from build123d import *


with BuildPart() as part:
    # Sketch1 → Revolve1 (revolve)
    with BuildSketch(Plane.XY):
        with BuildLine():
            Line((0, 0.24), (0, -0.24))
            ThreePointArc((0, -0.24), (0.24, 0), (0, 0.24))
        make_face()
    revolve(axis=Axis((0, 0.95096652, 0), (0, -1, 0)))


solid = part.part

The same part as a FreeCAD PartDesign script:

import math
import FreeCAD as App
import Part
import Sketcher
from FreeCAD import Vector

doc = App.newDocument("Part")
body = doc.addObject("PartDesign::Body", "Body")

sketch1 = body.newObject("Sketcher::SketchObject", "Sketch")
sketch1.AttachmentSupport = (doc.getObject("XY_Plane"), [""])
sketch1.MapMode = "FlatFace"
sketch1.addGeometry([
    Part.LineSegment(Vector(0, 0.24, 0), Vector(0, -0.24, 0)),
    Part.ArcOfCircle(Part.Circle(Vector(0, 0, 0), Vector(0, 0, 1), 0.24), math.radians(-90), math.radians(90)),
], False)
sketch1.addConstraint([
    Sketcher.Constraint("Coincident", 0, 1, 1, 2),
    Sketcher.Constraint("Coincident", 1, 1, 0, 2),
    Sketcher.Constraint("Vertical", 0),
    Sketcher.Constraint("Coincident", 1, 3, -1, 1),
    Sketcher.Constraint("PointOnObject", 0, 1, -2),
    Sketcher.Constraint("Radius", 1, 0.24),
])
revolution = body.newObject("PartDesign::Revolution", "Revolution")
revolution.Profile = sketch1
revolution.ReferenceAxis = (sketch1, ["V_Axis"])
revolution.Angle = 360

doc.recompute()
